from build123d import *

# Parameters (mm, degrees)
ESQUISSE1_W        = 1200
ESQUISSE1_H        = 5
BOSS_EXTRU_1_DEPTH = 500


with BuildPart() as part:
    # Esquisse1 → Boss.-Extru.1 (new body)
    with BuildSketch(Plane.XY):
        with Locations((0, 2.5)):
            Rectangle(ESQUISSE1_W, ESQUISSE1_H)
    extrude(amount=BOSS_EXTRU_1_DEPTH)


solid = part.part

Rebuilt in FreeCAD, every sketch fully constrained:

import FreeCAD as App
import Part
import Sketcher

V = App.Vector
Q = App.Units.Quantity


def add_polygon(sketch, points):
    """Adds a closed chain of lines whose ends are joined by coincident constraints."""
    first, n = sketch.GeometryCount, len(points)
    for a, b in zip(points, points[1:] + points[:1]):
        sketch.addGeometry(Part.LineSegment(App.Vector(*a, 0), App.Vector(*b, 0)), False)
    for i in range(n):
        sketch.addConstraint(Sketcher.Constraint("Coincident", first + i, 2, first + (i + 1) % n, 1))

doc = App.newDocument("Part")
body = doc.addObject("PartDesign::Body", "Body")

# Sketch on XY plane
sketch1 = body.newObject("Sketcher::SketchObject", "Sketch")
sketch1.AttachmentSupport = (doc.getObject("XY_Plane"), [""])
sketch1.MapMode = "FlatFace"
add_polygon(sketch1, [(-600, 5), (-600, 0), (600, 0), (600, 5)])  # lines 0-3
sketch1.addConstraint([
    Sketcher.Constraint("Vertical", 0),
    Sketcher.Constraint("Horizontal", 1),
    Sketcher.Constraint("Vertical", 2),
    Sketcher.Constraint("Horizontal", 3),
    Sketcher.Constraint("Symmetric", 0, 2, 1, 2, -1, 1),
    Sketcher.Constraint("DistanceX", 1, 1, 1, 2, Q("1200 mm")),
    Sketcher.Constraint("DistanceY", 0, 2, 0, 1, Q("5 mm")),
])
pad1 = body.newObject("PartDesign::Pad", "Pad")
pad1.Profile = sketch1
pad1.Length = 500

doc.recompute()
